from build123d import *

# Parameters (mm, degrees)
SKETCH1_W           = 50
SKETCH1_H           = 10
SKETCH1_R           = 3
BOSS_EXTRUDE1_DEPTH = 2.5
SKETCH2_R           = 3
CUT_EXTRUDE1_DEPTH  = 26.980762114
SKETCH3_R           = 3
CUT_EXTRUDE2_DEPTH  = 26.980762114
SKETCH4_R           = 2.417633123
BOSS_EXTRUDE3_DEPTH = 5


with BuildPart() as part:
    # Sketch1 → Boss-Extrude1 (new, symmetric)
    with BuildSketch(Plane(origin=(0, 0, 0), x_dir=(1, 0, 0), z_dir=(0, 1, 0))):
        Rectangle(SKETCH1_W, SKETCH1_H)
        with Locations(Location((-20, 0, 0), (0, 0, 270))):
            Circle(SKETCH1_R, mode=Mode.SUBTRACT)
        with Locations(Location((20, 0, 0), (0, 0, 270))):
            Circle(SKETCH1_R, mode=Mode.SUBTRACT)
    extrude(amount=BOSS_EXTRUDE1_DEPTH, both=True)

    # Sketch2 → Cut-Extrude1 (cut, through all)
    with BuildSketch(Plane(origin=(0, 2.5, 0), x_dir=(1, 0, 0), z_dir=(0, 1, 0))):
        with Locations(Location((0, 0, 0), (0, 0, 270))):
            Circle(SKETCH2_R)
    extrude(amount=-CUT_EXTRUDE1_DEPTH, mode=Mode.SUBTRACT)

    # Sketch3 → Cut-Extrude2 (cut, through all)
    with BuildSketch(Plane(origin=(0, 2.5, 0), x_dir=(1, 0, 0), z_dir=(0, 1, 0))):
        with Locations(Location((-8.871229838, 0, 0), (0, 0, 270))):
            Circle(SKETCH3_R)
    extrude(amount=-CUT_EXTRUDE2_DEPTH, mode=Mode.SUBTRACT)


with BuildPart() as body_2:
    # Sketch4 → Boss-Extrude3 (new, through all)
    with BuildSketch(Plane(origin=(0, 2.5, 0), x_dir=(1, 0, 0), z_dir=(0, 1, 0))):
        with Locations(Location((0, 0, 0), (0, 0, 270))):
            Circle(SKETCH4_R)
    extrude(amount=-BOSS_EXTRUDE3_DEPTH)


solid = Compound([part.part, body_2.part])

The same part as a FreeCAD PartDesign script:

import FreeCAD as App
import Part
import Sketcher


def add_polygon(sketch, points):
    """Adds a closed chain of lines whose ends are joined by coincident constraints."""
    first, n = sketch.GeometryCount, len(points)
    for a, b in zip(points, points[1:] + points[:1]):
        sketch.addGeometry(Part.LineSegment(App.Vector(*a, 0), App.Vector(*b, 0)), False)
    for i in range(n):
        sketch.addConstraint(Sketcher.Constraint("Coincident", first + i, 2, first + (i + 1) % n, 1))

doc = App.newDocument("Part")
body = doc.addObject("PartDesign::Body", "Body")

# Sketch on XZ plane
sketch1 = body.newObject("Sketcher::SketchObject", "Sketch")
sketch1.AttachmentSupport = (doc.getObject("XZ_Plane"), [""])
sketch1.MapMode = "FlatFace"
add_polygon(sketch1, [(-25, -5), (-25, 5), (25, 5), (25, -5)])  # lines 0-3
sketch1.addGeometry(Part.Circle(App.Vector(-20, 0, 0), App.Vector(0, 0, 1), 3), False)  # 4
sketch1.addGeometry(Part.Circle(App.Vector(20, 0, 0), App.Vector(0, 0, 1), 3), False)  # 5
sketch1.addConstraint(Sketcher.Constraint("Vertical", 0))
sketch1.addConstraint(Sketcher.Constraint("Horizontal", 1))
sketch1.addConstraint(Sketcher.Constraint("Vertical", 2))
sketch1.addConstraint(Sketcher.Constraint("Horizontal", 3))
sketch1.addConstraint(Sketcher.Constraint("Equal", 4, 5))
sketch1.addConstraint(Sketcher.Constraint("Symmetric", 4, 3, 5, 3, -1, 1))
sketch1.addConstraint(Sketcher.Constraint("Symmetric", 0, 2, 2, 2, -1, 1))
sketch1.addConstraint(Sketcher.Constraint("PointOnObject", 4, 3, -1))
sketch1.addConstraint(Sketcher.Constraint("Diameter", 4, 6.0))
sketch1.addConstraint(Sketcher.Constraint("DistanceX", 1, 1, 1, 2, 50.0))
sketch1.addConstraint(Sketcher.Constraint("DistanceY", 0, 1, 0, 2, 10.0))
sketch1.addConstraint(Sketcher.Constraint("DistanceX", 4, 3, -1, 1, 20.0))
pad1 = body.newObject("PartDesign::Pad", "Pad")
pad1.Profile = sketch1
pad1.Length = 5
pad1.Midplane = True

# Sketch on XZ plane
sketch2 = body.newObject("Sketcher::SketchObject", "Sketch001")
sketch2.AttachmentSupport = (doc.getObject("XZ_Plane"), [""])
sketch2.MapMode = "FlatFace"
sketch2.AttachmentOffset = App.Placement(App.Vector(0, 0, -2.5), App.Rotation())
sketch2.addGeometry(Part.Circle(App.Vector(0, 0, 0), App.Vector(0, 0, 1), 3), False)
sketch2.addConstraint(Sketcher.Constraint("Coincident", 0, 3, -1, 1))
sketch2.addConstraint(Sketcher.Constraint("Diameter", 0, 6.0))
pocket1 = body.newObject("PartDesign::Pocket", "Pocket")
pocket1.Profile = sketch2
pocket1.Type = "ThroughAll"
pocket1.Reversed = True

# Sketch on XZ plane
sketch3 = body.newObject("Sketcher::SketchObject", "Sketch002")
sketch3.AttachmentSupport = (doc.getObject("XZ_Plane"), [""])
sketch3.MapMode = "FlatFace"
sketch3.AttachmentOffset = App.Placement(App.Vector(0, 0, -2.5), App.Rotation())
sketch3.addGeometry(Part.Circle(App.Vector(-8.9, 0, 0), App.Vector(0, 0, 1), 3), False)
sketch3.addConstraint(Sketcher.Constraint("PointOnObject", 0, 3, -1))
sketch3.addConstraint(Sketcher.Constraint("Diameter", 0, 6.0))
sketch3.addConstraint(Sketcher.Constraint("DistanceX", 0, 3, -1, 1, 8.87123))
pocket2 = body.newObject("PartDesign::Pocket", "Pocket001")
pocket2.Profile = sketch3
pocket2.Type = "ThroughAll"
pocket2.Reversed = True
body2 = doc.addObject("PartDesign::Body", "Body001")

# Sketch on XZ plane
sketch4 = body2.newObject("Sketcher::SketchObject", "Sketch003")
sketch4.AttachmentSupport = (doc.getObject("XZ_Plane001"), [""])
sketch4.MapMode = "FlatFace"
sketch4.AttachmentOffset = App.Placement(App.Vector(0, 0, -2.5), App.Rotation())
sketch4.addGeometry(Part.Circle(App.Vector(0, 0, 0), App.Vector(0, 0, 1), 2.4), False)
sketch4.addConstraint(Sketcher.Constraint("Coincident", 0, 3, -1, 1))
sketch4.addConstraint(Sketcher.Constraint("Diameter", 0, 4.835266))
pad2 = body2.newObject("PartDesign::Pad", "Pad001")
pad2.Profile = sketch4
pad2.Length = 5

doc.recompute()
